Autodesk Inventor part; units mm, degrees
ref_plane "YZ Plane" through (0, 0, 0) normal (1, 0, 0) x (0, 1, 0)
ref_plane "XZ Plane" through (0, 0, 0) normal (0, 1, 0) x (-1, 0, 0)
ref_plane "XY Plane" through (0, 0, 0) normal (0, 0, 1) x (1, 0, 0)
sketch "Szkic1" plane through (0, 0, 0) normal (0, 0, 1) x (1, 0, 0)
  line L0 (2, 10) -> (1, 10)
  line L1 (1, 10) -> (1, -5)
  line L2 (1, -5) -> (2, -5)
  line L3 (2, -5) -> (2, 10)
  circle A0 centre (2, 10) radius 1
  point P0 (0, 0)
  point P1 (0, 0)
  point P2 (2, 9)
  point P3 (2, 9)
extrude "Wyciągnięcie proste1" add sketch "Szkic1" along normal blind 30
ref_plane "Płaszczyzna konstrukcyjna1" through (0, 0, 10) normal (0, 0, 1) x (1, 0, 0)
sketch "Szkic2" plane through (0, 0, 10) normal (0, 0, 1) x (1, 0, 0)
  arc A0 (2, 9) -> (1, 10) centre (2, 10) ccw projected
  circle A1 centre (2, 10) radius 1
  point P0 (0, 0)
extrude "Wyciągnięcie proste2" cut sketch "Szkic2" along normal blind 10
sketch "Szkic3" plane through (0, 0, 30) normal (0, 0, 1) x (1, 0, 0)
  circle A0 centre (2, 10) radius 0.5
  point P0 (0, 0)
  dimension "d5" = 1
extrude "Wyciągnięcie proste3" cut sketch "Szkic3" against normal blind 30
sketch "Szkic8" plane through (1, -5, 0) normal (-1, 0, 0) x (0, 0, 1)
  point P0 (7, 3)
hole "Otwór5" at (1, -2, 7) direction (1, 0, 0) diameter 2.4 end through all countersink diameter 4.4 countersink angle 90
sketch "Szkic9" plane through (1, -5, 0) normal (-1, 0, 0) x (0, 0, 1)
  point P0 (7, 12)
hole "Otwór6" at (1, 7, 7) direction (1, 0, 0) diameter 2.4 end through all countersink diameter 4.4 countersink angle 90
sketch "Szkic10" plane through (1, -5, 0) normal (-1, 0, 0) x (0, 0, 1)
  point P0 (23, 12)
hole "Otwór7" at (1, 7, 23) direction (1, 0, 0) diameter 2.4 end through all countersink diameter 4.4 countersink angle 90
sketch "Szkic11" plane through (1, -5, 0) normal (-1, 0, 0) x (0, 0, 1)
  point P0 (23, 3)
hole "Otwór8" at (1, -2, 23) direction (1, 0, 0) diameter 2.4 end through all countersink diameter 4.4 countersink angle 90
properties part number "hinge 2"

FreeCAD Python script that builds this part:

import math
import FreeCAD as App
import Part
import Sketcher

V = App.Vector

doc = App.newDocument("Part")
body = doc.addObject("PartDesign::Body", "Body")

# Sketch on XY plane
sketch1 = body.newObject("Sketcher::SketchObject", "Sketch")
sketch1.AttachmentSupport = (doc.getObject("XY_Plane"), [""])
sketch1.MapMode = "FlatFace"
sketch1.addGeometry([
    Part.ArcOfCircle(Part.Circle(V(2, 10, 0), V(0, 0, 1), 1), math.radians(-90), math.radians(180)),
    Part.LineSegment(V(1, 10, 0), V(1, -5, 0)),
    Part.LineSegment(V(1, -5, 0), V(2, -5, 0)),
    Part.LineSegment(V(2, -5, 0), V(2, 9, 0)),
], False)
sketch1.addConstraint([
    Sketcher.Constraint("Tangent", 0, 2, 1, 1),
    Sketcher.Constraint("Coincident", 1, 2, 2, 1),
    Sketcher.Constraint("Coincident", 2, 2, 3, 1),
    Sketcher.Constraint("Coincident", 3, 2, 0, 1),
    Sketcher.Constraint("Vertical", 1),
    Sketcher.Constraint("Horizontal", 2),
    Sketcher.Constraint("Vertical", 3),
    Sketcher.Constraint("Vertical", 0, 3, 2, 2),
    Sketcher.Constraint("Radius", 0, 1.0),
    Sketcher.Constraint("DistanceY", 1, 2, 1, 1, 15.0),
    Sketcher.Constraint("DistanceX", -1, 1, 0, 3, 2.0),
    Sketcher.Constraint("DistanceY", -1, 1, 0, 3, 10.0),
])
pad1 = body.newObject("PartDesign::Pad", "Pad")
pad1.Profile = sketch1
pad1.Length = 30

# Sketch on XY plane
sketch2 = body.newObject("Sketcher::SketchObject", "Sketch001")
sketch2.AttachmentSupport = (doc.getObject("XY_Plane"), [""])
sketch2.MapMode = "FlatFace"
sketch2.AttachmentOffset = App.Placement(V(0, 0, 10), App.Rotation())
sketch2.addGeometry(Part.Circle(V(2, 10, 0), V(0, 0, 1), 1), False)
sketch2.addConstraint([
    Sketcher.Constraint("Diameter", 0, 2.0),
    Sketcher.Constraint("DistanceX", -1, 1, 0, 3, 2.0),
    Sketcher.Constraint("DistanceY", -1, 1, 0, 3, 10.0),
])
pocket1 = body.newObject("PartDesign::Pocket", "Pocket")
pocket1.Profile = sketch2
pocket1.Length = 10
pocket1.Reversed = True

# Sketch on XY plane
sketch3 = body.newObject("Sketcher::SketchObject", "Sketch002")
sketch3.AttachmentSupport = (doc.getObject("XY_Plane"), [""])
sketch3.MapMode = "FlatFace"
sketch3.AttachmentOffset = App.Placement(V(0, 0, 30), App.Rotation())
sketch3.addGeometry(Part.Circle(V(2, 10, 0), V(0, 0, 1), 0.5), False)
sketch3.addConstraint([
    Sketcher.Constraint("Diameter", 0, 1.0),
    Sketcher.Constraint("DistanceX", -1, 1, 0, 3, 2.0),
    Sketcher.Constraint("DistanceY", -1, 1, 0, 3, 10.0),
])
pocket2 = body.newObject("PartDesign::Pocket", "Pocket001")
pocket2.Profile = sketch3
pocket2.Length = 30

# Sketch on YZ plane
sketch4 = body.newObject("Sketcher::SketchObject", "Sketch003")
sketch4.AttachmentSupport = (doc.getObject("YZ_Plane"), [""])
sketch4.MapMode = "FlatFace"
sketch4.AttachmentOffset = App.Placement(V(0, 0, 1), App.Rotation())
sketch4.addGeometry(Part.Circle(V(-2, 7, 0), V(0, 0, 1), 1.2), False)
sketch4.addConstraint([
    Sketcher.Constraint("Diameter", 0, 2.4),
    Sketcher.Constraint("DistanceX", 0, 3, -1, 1, 2.0),
    Sketcher.Constraint("DistanceY", -1, 1, 0, 3, 7.0),
])
doc.recompute()
hole = body.newObject("PartDesign::Hole", "Hole")
hole.Profile = sketch4
hole.ThreadType = "None"
hole.Diameter = 2.4
hole.DepthType = "ThroughAll"
hole.HoleCutType = "Countersink"
hole.HoleCutDiameter = 4.4
hole.HoleCutCountersinkAngle = 90
hole.Reversed = True

# Sketch on YZ plane
sketch5 = body.newObject("Sketcher::SketchObject", "Sketch004")
sketch5.AttachmentSupport = (doc.getObject("YZ_Plane"), [""])
sketch5.MapMode = "FlatFace"
sketch5.AttachmentOffset = App.Placement(V(0, 0, 1), App.Rotation())
sketch5.addGeometry(Part.Circle(V(7, 7, 0), V(0, 0, 1), 1.2), False)
sketch5.addConstraint([
    Sketcher.Constraint("Diameter", 0, 2.4),
    Sketcher.Constraint("DistanceX", -1, 1, 0, 3, 7.0),
    Sketcher.Constraint("DistanceY", -1, 1, 0, 3, 7.0),
])
doc.recompute()
hole2 = body.newObject("PartDesign::Hole", "Hole001")
hole2.Profile = sketch5
hole2.ThreadType = "None"
hole2.Diameter = 2.4
hole2.DepthType = "ThroughAll"
hole2.HoleCutType = "Countersink"
hole2.HoleCutDiameter = 4.4
hole2.HoleCutCountersinkAngle = 90
hole2.Reversed = True

# Sketch on YZ plane
sketch6 = body.newObject("Sketcher::SketchObject", "Sketch005")
sketch6.AttachmentSupport = (doc.getObject("YZ_Plane"), [""])
sketch6.MapMode = "FlatFace"
sketch6.AttachmentOffset = App.Placement(V(0, 0, 1), App.Rotation())
sketch6.addGeometry(Part.Circle(V(7, 23, 0), V(0, 0, 1), 1.2), False)
sketch6.addConstraint([
    Sketcher.Constraint("Diameter", 0, 2.4),
    Sketcher.Constraint("DistanceX", -1, 1, 0, 3, 7.0),
    Sketcher.Constraint("DistanceY", -1, 1, 0, 3, 23.0),
])
doc.recompute()
hole3 = body.newObject("PartDesign::Hole", "Hole002")
hole3.Profile = sketch6
hole3.ThreadType = "None"
hole3.Diameter = 2.4
hole3.DepthType = "ThroughAll"
hole3.HoleCutType = "Countersink"
hole3.HoleCutDiameter = 4.4
hole3.HoleCutCountersinkAngle = 90
hole3.Reversed = True

# Sketch on YZ plane
sketch7 = body.newObject("Sketcher::SketchObject", "Sketch006")
sketch7.AttachmentSupport = (doc.getObject("YZ_Plane"), [""])
sketch7.MapMode = "FlatFace"
sketch7.AttachmentOffset = App.Placement(V(0, 0, 1), App.Rotation())
sketch7.addGeometry(Part.Circle(V(-2, 23, 0), V(0, 0, 1), 1.2), False)
sketch7.addConstraint([
    Sketcher.Constraint("Diameter", 0, 2.4),
    Sketcher.Constraint("DistanceX", 0, 3, -1, 1, 2.0),
    Sketcher.Constraint("DistanceY", -1, 1, 0, 3, 23.0),
])
doc.recompute()
hole4 = body.newObject("PartDesign::Hole", "Hole003")
hole4.Profile = sketch7
hole4.ThreadType = "None"
hole4.Diameter = 2.4
hole4.DepthType = "ThroughAll"
hole4.HoleCutType = "Countersink"
hole4.HoleCutDiameter = 4.4
hole4.HoleCutCountersinkAngle = 90
hole4.Reversed = True

doc.recompute()
